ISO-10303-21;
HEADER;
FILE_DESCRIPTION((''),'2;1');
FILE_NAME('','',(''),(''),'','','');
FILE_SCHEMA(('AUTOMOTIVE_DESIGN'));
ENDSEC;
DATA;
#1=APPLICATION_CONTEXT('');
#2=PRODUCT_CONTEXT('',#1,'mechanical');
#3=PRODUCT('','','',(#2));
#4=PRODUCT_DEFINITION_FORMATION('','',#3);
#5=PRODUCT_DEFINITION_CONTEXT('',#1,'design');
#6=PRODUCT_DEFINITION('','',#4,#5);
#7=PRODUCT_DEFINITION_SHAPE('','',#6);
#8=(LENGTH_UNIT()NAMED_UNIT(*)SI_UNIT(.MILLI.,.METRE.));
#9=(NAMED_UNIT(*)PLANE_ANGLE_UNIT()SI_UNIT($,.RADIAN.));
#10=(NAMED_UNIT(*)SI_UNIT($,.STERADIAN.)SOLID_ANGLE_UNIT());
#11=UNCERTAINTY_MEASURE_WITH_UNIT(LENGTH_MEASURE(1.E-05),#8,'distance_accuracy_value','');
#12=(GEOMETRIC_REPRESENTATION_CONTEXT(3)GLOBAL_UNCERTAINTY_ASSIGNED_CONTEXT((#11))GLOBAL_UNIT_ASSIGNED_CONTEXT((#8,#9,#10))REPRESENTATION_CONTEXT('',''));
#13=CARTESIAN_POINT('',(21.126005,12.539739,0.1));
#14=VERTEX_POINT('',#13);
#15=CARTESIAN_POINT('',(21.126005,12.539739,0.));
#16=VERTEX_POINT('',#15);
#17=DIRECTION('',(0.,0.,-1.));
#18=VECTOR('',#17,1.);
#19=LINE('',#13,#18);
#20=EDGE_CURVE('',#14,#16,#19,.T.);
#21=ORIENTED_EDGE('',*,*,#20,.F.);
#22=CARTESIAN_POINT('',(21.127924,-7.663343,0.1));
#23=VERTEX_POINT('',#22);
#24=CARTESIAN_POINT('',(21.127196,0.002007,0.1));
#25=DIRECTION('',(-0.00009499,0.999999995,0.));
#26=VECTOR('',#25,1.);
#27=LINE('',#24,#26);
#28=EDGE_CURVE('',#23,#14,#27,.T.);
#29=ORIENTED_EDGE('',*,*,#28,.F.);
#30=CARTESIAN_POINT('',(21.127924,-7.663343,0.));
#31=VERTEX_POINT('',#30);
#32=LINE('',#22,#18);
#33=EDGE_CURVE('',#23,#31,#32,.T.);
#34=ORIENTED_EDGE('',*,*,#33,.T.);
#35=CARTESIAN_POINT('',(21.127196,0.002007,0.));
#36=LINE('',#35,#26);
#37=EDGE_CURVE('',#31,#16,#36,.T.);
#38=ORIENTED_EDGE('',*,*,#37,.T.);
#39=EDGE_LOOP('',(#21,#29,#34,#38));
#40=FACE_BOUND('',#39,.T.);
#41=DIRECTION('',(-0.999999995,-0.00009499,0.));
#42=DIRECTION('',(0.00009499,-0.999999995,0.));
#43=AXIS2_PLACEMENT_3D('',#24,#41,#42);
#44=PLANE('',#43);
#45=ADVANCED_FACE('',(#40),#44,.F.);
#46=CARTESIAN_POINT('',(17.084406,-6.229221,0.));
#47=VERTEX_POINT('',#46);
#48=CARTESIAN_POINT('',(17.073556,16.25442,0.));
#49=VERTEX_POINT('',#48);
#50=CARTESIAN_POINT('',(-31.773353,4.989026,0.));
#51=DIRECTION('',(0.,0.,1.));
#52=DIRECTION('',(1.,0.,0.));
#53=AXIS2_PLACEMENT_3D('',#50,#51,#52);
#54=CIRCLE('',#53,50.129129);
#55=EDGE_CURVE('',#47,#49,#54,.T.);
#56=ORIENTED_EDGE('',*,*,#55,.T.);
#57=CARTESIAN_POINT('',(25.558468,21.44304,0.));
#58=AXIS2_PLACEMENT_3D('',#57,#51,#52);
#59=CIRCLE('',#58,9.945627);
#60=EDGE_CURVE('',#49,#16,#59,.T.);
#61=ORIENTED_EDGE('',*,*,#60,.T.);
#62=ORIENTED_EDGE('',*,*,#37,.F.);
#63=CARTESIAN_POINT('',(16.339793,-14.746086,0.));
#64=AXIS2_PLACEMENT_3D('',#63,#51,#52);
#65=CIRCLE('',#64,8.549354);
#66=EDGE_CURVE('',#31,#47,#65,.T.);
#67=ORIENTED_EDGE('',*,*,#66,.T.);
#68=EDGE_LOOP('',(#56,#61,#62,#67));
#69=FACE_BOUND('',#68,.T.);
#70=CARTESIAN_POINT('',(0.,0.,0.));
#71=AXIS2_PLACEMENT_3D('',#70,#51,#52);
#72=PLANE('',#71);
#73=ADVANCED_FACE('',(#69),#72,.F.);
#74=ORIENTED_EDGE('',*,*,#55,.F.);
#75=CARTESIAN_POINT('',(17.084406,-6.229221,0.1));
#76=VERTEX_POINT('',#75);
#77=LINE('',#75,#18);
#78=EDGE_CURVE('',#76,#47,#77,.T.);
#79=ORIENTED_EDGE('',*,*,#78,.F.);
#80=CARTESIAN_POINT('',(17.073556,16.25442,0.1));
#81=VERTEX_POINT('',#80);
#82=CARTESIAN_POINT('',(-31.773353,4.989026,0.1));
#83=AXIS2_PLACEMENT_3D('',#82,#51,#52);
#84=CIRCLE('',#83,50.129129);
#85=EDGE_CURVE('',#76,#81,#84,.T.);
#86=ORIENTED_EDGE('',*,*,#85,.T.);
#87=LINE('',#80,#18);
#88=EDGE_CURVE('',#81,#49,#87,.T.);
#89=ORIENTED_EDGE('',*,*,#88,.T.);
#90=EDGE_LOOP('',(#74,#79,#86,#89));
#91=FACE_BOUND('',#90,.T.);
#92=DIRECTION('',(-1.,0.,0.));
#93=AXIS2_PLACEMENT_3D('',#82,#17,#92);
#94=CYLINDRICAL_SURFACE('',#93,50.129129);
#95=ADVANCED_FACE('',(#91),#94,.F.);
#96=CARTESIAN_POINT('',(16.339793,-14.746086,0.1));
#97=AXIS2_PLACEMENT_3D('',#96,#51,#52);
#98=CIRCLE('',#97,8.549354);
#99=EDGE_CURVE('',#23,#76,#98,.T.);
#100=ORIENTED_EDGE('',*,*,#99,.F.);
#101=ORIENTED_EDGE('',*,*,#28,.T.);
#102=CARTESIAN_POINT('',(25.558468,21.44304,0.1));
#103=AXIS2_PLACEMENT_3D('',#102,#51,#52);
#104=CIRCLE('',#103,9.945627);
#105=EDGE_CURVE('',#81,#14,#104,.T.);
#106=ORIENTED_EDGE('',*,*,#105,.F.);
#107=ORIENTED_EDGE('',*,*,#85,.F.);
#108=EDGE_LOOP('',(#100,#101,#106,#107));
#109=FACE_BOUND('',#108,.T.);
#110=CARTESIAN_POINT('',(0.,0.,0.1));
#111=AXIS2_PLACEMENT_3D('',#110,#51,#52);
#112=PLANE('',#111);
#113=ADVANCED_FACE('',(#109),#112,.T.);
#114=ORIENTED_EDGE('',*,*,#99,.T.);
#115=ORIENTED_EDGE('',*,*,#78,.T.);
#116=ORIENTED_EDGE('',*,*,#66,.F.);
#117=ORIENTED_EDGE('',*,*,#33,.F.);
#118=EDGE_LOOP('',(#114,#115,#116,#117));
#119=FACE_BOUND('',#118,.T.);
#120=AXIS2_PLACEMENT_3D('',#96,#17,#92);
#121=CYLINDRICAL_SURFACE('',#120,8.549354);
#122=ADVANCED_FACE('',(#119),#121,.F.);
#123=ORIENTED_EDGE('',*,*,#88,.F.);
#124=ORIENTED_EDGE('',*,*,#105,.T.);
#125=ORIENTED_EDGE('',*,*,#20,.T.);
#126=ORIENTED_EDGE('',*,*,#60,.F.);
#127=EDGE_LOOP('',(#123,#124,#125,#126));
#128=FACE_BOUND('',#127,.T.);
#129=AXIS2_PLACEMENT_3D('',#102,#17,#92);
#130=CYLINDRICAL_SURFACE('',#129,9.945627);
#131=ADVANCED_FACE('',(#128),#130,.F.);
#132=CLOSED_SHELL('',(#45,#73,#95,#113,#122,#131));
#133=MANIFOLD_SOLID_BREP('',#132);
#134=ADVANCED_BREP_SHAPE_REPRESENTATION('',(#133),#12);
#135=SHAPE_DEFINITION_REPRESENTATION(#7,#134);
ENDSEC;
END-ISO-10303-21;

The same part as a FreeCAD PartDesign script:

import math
import FreeCAD as App
import Part
import Sketcher

V = App.Vector
Q = App.Units.Quantity

doc = App.newDocument("Part")
params = doc.addObject("Spreadsheet::Sheet", "Params")
for row, (alias, value) in enumerate([
    ("pad1_length", "0.1 mm"),
], start=1):
    params.set(f"A{row}", alias)
    params.set(f"B{row}", "=" + value)
    params.setAlias(f"B{row}", alias)

body = doc.addObject("PartDesign::Body", "Body")

sketch1 = body.newObject("Sketcher::SketchObject", "Sketch")
sketch1.AttachmentSupport = (doc.getObject("XY_Plane"), [""])
sketch1.MapMode = "FlatFace"
sketch1.addGeometry([
    Part.ArcOfCircle(Part.Circle(V(16.3, -14.7, 0), V(0, 0, 1), 8.5), math.radians(56), math.radians(85)),
    Part.LineSegment(V(21.1, -7.7, 0), V(21.1, 12.5, 0)),
    Part.ArcOfCircle(Part.Circle(V(25.6, 21.4, 0), V(0, 0, 1), 9.9), math.radians(-149), math.radians(-116)),
    Part.ArcOfCircle(Part.Circle(V(-31.8, 5, 0), V(0, 0, 1), 50.1), math.radians(-13), math.radians(13)),
], False)
sketch1.addConstraint([
    Sketcher.Constraint("Coincident", 0, 1, 1, 1),
    Sketcher.Constraint("Coincident", 1, 2, 2, 2),
    Sketcher.Constraint("Coincident", 2, 1, 3, 2),
    Sketcher.Constraint("Coincident", 3, 1, 0, 2),
    Sketcher.Constraint("Radius", 3, Q("50.129129 mm")),
    Sketcher.Constraint("Radius", 0, Q("8.549354 mm")),
    Sketcher.Constraint("Radius", 2, Q("9.945627 mm")),
    Sketcher.Constraint("DistanceY", 1, 2, 2, 3, Q("8.903301 mm")),
    Sketcher.Constraint("DistanceX", 3, 1, 1, 2, Q("4.041599 mm")),
    Sketcher.Constraint("Distance", 1, Q("20.203082 mm")),
    Sketcher.Constraint("DistanceX", -1, 1, 2, 3, Q("25.558468 mm")),
    Sketcher.Constraint("DistanceY", -1, 1, 2, 3, Q("21.44304 mm")),
    Sketcher.Constraint("DistanceY", -1, 1, 2, 1, Q("16.25442 mm")),
    Sketcher.Constraint("DistanceY", 3, 1, -1, 1, Q("6.229221 mm")),
    Sketcher.Constraint("DistanceX", 0, 3, 0, 1, Q("4.788131 mm")),
])
pad1 = body.newObject("PartDesign::Pad", "Pad")
pad1.Profile = sketch1
pad1.setExpression("Length", "Params.pad1_length")

doc.recompute()
